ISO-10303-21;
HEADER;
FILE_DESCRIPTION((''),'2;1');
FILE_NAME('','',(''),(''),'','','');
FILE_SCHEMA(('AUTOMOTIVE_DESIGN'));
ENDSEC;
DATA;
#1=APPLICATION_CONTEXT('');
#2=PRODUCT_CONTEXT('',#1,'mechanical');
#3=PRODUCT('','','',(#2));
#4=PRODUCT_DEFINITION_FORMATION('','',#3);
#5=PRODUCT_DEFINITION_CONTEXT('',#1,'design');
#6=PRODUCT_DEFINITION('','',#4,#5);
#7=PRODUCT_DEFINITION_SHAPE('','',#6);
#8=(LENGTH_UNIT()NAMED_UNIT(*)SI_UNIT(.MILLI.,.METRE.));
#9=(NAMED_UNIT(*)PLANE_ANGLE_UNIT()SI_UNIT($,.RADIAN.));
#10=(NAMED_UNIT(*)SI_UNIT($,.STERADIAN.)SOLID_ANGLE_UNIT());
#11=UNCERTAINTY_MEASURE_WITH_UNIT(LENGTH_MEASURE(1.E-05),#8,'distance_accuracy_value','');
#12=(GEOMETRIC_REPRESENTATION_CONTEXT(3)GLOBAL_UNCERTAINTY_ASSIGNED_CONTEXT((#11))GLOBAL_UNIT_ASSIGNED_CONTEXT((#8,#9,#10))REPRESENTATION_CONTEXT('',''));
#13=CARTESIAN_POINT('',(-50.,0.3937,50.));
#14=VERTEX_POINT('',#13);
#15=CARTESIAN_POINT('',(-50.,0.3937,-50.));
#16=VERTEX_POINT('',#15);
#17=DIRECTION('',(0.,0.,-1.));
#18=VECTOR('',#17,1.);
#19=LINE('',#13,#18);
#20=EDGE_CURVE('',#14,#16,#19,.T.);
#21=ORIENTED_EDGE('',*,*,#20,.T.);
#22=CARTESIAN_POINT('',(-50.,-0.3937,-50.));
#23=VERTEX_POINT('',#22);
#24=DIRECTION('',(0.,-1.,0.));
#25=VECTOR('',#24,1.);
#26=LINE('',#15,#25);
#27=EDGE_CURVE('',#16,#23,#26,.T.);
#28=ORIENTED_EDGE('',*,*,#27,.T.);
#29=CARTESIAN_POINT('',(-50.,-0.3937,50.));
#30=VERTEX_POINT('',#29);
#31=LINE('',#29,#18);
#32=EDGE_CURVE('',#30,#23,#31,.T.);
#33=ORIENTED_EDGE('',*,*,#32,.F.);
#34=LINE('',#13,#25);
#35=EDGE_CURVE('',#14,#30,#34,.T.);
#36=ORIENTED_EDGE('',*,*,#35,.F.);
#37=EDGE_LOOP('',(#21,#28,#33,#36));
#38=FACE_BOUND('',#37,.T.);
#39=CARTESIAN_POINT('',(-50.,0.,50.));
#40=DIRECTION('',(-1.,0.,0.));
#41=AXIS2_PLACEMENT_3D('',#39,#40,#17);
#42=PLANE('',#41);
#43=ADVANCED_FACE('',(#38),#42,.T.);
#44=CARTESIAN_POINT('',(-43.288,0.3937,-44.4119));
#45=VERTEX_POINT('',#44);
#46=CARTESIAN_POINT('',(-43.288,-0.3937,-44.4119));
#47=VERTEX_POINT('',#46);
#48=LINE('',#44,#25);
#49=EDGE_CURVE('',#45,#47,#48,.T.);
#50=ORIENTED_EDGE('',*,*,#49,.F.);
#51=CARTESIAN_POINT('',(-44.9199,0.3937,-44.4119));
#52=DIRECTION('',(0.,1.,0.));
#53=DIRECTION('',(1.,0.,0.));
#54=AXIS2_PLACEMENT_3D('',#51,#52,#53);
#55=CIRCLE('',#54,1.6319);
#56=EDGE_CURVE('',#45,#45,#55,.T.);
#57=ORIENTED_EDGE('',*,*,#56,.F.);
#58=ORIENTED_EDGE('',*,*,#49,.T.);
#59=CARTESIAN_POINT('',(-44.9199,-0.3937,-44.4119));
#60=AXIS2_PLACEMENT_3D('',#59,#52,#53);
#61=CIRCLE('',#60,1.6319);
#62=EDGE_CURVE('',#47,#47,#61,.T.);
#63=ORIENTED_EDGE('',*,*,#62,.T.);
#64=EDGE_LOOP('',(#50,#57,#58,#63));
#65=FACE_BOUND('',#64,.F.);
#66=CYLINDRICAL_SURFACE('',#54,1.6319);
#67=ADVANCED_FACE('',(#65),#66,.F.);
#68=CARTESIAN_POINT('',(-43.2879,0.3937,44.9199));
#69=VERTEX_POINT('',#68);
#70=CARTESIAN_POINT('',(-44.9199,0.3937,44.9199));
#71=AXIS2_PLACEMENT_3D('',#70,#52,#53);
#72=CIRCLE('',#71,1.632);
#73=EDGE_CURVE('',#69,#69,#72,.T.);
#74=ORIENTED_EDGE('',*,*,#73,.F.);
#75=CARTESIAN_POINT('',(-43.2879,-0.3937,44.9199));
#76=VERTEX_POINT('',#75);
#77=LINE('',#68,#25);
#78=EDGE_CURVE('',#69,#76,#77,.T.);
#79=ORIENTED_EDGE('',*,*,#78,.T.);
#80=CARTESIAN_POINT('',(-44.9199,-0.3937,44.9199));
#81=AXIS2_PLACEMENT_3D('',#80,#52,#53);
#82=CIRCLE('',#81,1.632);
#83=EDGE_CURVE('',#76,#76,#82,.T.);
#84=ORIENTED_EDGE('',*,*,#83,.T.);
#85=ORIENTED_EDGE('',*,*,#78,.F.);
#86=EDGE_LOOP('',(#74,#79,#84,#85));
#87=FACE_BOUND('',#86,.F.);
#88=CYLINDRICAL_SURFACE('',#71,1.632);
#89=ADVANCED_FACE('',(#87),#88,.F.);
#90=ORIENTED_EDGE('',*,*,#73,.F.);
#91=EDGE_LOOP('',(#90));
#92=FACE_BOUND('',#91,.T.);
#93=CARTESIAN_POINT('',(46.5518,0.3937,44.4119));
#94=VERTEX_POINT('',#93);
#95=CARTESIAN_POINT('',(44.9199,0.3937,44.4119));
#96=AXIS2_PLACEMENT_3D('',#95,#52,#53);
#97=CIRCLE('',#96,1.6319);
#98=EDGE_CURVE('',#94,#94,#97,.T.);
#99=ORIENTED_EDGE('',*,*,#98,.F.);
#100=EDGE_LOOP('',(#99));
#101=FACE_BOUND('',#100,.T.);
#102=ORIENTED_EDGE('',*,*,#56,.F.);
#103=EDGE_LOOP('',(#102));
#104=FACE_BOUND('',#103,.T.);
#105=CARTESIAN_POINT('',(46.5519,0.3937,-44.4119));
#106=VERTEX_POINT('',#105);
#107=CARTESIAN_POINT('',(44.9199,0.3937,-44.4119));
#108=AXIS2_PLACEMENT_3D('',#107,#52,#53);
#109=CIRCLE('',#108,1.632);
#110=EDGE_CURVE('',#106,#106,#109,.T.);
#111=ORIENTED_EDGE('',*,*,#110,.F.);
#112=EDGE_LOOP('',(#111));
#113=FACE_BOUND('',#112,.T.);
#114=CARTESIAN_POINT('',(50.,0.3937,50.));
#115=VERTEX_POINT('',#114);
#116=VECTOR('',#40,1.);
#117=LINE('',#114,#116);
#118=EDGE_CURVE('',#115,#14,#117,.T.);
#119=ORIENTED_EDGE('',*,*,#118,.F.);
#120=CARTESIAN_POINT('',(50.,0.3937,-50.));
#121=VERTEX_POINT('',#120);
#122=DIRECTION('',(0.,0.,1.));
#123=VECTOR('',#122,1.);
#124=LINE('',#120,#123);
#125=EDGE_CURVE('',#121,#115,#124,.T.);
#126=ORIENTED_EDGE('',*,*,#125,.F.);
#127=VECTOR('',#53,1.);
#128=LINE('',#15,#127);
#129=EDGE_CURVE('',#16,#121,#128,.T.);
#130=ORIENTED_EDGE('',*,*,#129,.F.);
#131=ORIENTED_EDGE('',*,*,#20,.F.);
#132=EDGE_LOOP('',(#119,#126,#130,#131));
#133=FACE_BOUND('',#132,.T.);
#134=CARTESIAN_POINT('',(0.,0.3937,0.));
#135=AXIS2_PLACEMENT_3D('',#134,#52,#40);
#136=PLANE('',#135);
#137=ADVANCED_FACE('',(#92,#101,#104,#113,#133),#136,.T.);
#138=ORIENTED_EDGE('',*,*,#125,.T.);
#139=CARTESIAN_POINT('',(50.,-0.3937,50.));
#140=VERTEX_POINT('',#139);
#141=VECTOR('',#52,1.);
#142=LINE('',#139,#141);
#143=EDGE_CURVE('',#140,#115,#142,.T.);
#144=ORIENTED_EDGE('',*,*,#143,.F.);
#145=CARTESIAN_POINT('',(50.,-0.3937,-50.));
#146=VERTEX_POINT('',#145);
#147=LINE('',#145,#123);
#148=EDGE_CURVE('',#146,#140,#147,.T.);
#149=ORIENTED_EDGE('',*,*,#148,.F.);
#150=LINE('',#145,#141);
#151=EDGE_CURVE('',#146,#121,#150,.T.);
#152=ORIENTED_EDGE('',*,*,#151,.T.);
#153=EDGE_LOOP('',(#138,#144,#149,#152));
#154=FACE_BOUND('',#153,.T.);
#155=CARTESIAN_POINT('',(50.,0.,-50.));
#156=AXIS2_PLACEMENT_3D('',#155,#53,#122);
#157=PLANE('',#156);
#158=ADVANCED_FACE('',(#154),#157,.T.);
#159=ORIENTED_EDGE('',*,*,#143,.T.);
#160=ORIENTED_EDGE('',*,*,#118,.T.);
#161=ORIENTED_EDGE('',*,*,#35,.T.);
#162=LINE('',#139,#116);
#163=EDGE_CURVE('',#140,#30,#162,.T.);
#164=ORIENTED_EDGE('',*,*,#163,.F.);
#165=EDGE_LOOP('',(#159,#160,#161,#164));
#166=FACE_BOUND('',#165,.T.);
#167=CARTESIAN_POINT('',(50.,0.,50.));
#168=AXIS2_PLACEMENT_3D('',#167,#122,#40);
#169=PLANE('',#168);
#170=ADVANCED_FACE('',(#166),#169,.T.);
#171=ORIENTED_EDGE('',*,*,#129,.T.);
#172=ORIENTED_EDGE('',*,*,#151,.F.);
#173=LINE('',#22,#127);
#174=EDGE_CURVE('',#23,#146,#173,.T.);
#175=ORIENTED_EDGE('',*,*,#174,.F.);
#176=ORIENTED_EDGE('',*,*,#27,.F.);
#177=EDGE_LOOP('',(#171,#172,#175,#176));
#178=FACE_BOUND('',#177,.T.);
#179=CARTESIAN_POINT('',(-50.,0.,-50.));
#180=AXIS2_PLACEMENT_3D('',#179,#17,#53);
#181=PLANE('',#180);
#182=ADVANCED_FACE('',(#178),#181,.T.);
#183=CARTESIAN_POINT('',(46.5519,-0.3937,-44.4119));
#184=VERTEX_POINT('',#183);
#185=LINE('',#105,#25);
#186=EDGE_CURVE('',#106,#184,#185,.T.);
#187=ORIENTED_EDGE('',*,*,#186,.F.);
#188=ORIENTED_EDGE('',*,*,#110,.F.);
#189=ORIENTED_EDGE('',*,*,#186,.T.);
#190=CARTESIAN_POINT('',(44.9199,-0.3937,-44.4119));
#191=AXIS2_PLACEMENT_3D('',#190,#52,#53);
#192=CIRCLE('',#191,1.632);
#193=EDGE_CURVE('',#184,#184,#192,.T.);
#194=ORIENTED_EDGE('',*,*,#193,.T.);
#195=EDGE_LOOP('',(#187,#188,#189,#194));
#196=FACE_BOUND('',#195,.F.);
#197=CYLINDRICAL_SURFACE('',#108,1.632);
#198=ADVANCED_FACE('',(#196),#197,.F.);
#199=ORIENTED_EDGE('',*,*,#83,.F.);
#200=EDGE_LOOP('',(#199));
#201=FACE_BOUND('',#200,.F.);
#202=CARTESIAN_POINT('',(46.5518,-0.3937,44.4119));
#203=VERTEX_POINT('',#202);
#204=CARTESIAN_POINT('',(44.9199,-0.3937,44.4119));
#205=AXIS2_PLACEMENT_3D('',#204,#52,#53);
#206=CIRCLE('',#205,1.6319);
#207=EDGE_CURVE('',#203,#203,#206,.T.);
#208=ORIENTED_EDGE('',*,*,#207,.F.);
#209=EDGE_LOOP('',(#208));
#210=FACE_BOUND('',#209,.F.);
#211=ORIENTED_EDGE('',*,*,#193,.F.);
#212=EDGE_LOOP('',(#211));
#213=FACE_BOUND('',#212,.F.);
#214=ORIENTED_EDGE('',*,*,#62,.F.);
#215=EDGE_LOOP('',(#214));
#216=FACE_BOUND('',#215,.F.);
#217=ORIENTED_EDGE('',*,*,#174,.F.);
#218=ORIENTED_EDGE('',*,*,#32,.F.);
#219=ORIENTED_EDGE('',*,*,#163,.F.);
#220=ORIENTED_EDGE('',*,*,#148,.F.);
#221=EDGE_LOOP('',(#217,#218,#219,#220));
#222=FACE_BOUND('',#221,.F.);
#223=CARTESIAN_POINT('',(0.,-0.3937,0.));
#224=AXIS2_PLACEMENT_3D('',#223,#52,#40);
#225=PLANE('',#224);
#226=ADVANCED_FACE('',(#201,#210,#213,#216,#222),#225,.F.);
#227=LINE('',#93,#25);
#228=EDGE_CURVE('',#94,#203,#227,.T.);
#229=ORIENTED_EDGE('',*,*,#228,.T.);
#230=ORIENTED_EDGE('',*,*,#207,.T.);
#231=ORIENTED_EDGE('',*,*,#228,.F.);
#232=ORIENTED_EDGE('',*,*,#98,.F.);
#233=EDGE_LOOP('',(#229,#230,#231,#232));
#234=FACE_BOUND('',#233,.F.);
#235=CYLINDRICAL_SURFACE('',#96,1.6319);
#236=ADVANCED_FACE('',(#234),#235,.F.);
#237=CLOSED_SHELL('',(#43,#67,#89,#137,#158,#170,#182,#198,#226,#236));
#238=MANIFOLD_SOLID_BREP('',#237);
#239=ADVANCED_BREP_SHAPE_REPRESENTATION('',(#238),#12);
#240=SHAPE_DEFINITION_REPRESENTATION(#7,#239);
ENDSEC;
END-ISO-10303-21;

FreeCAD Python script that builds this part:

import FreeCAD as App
import Part
import Sketcher
from FreeCAD import Vector
Q = App.Units.Quantity


def add_polygon(sketch, points):
    """Adds a closed chain of lines whose ends are joined by coincident constraints."""
    first, n = sketch.GeometryCount, len(points)
    for a, b in zip(points, points[1:] + points[:1]):
        sketch.addGeometry(Part.LineSegment(App.Vector(*a, 0), App.Vector(*b, 0)), False)
    for i in range(n):
        sketch.addConstraint(Sketcher.Constraint("Coincident", first + i, 2, first + (i + 1) % n, 1))

doc = App.newDocument("Part")
body = doc.addObject("PartDesign::Body", "Body")

sketch1 = body.newObject("Sketcher::SketchObject", "Sketch")
sketch1.AttachmentSupport = (doc.getObject("XZ_Plane"), [""])
sketch1.MapMode = "FlatFace"
add_polygon(sketch1, [(-50, 50), (50, 50), (50, -50), (-50, -50)])
sketch1.addConstraint([
    Sketcher.Constraint("Horizontal", 0),
    Sketcher.Constraint("Vertical", 1),
    Sketcher.Constraint("Horizontal", 2),
    Sketcher.Constraint("Vertical", 3),
    Sketcher.Constraint("Symmetric", 0, 2, 2, 2, -1, 1),
    Sketcher.Constraint("Equal", 2, 1),
    Sketcher.Constraint("DistanceX", 0, 1, 0, 2, Q("3.937 in")),
])
pad1 = body.newObject("PartDesign::Pad", "Pad")
pad1.Profile = sketch1
pad1.Length = Q("0.031 in")
pad1.Midplane = True

sketch2 = body.newObject("Sketcher::SketchObject", "Sketch001")
sketch2.AttachmentSupport = (doc.getObject("XZ_Plane"), [""])
sketch2.MapMode = "FlatFace"
sketch2.AttachmentOffset = App.Placement(Vector(0, 0, -0.0155 * 25.4), App.Rotation())
sketch2.addGeometry([
    Part.Circle(Vector(-44.9, 44.9, 0), Vector(0, 0, 1), 1.6),
    Part.Circle(Vector(-44.9, -44.4, 0), Vector(0, 0, 1), 1.6),
    Part.Circle(Vector(44.9, -44.4, 0), Vector(0, 0, 1), 1.6),
    Part.Circle(Vector(44.9, 44.4, 0), Vector(0, 0, 1), 1.6),
], False)
sketch2.addConstraint([
    Sketcher.Constraint("Equal", 0, 1),
    Sketcher.Constraint("Equal", 1, 2),
    Sketcher.Constraint("Equal", 2, 3),
    Sketcher.Constraint("Symmetric", 1, 3, 3, 3, -1, 1),
    Sketcher.Constraint("Symmetric", 1, 3, 2, 3, -2),
    Sketcher.Constraint("Vertical", 0, 3, 1, 3),
    Sketcher.Constraint("Diameter", 0, Q("0.1285 in")),
    Sketcher.Constraint("DistanceY", 3, 3, 0, 3, Q("0.02 in")),
    Sketcher.Constraint("DistanceY", 1, 3, 0, 3, Q("3.517 in")),
    Sketcher.Constraint("DistanceX", 1, 3, 2, 3, Q("3.537 in")),
])
pocket1 = body.newObject("PartDesign::Pocket", "Pocket")
pocket1.Profile = sketch2
pocket1.Type = "ThroughAll"
pocket1.Reversed = True

doc.recompute()
